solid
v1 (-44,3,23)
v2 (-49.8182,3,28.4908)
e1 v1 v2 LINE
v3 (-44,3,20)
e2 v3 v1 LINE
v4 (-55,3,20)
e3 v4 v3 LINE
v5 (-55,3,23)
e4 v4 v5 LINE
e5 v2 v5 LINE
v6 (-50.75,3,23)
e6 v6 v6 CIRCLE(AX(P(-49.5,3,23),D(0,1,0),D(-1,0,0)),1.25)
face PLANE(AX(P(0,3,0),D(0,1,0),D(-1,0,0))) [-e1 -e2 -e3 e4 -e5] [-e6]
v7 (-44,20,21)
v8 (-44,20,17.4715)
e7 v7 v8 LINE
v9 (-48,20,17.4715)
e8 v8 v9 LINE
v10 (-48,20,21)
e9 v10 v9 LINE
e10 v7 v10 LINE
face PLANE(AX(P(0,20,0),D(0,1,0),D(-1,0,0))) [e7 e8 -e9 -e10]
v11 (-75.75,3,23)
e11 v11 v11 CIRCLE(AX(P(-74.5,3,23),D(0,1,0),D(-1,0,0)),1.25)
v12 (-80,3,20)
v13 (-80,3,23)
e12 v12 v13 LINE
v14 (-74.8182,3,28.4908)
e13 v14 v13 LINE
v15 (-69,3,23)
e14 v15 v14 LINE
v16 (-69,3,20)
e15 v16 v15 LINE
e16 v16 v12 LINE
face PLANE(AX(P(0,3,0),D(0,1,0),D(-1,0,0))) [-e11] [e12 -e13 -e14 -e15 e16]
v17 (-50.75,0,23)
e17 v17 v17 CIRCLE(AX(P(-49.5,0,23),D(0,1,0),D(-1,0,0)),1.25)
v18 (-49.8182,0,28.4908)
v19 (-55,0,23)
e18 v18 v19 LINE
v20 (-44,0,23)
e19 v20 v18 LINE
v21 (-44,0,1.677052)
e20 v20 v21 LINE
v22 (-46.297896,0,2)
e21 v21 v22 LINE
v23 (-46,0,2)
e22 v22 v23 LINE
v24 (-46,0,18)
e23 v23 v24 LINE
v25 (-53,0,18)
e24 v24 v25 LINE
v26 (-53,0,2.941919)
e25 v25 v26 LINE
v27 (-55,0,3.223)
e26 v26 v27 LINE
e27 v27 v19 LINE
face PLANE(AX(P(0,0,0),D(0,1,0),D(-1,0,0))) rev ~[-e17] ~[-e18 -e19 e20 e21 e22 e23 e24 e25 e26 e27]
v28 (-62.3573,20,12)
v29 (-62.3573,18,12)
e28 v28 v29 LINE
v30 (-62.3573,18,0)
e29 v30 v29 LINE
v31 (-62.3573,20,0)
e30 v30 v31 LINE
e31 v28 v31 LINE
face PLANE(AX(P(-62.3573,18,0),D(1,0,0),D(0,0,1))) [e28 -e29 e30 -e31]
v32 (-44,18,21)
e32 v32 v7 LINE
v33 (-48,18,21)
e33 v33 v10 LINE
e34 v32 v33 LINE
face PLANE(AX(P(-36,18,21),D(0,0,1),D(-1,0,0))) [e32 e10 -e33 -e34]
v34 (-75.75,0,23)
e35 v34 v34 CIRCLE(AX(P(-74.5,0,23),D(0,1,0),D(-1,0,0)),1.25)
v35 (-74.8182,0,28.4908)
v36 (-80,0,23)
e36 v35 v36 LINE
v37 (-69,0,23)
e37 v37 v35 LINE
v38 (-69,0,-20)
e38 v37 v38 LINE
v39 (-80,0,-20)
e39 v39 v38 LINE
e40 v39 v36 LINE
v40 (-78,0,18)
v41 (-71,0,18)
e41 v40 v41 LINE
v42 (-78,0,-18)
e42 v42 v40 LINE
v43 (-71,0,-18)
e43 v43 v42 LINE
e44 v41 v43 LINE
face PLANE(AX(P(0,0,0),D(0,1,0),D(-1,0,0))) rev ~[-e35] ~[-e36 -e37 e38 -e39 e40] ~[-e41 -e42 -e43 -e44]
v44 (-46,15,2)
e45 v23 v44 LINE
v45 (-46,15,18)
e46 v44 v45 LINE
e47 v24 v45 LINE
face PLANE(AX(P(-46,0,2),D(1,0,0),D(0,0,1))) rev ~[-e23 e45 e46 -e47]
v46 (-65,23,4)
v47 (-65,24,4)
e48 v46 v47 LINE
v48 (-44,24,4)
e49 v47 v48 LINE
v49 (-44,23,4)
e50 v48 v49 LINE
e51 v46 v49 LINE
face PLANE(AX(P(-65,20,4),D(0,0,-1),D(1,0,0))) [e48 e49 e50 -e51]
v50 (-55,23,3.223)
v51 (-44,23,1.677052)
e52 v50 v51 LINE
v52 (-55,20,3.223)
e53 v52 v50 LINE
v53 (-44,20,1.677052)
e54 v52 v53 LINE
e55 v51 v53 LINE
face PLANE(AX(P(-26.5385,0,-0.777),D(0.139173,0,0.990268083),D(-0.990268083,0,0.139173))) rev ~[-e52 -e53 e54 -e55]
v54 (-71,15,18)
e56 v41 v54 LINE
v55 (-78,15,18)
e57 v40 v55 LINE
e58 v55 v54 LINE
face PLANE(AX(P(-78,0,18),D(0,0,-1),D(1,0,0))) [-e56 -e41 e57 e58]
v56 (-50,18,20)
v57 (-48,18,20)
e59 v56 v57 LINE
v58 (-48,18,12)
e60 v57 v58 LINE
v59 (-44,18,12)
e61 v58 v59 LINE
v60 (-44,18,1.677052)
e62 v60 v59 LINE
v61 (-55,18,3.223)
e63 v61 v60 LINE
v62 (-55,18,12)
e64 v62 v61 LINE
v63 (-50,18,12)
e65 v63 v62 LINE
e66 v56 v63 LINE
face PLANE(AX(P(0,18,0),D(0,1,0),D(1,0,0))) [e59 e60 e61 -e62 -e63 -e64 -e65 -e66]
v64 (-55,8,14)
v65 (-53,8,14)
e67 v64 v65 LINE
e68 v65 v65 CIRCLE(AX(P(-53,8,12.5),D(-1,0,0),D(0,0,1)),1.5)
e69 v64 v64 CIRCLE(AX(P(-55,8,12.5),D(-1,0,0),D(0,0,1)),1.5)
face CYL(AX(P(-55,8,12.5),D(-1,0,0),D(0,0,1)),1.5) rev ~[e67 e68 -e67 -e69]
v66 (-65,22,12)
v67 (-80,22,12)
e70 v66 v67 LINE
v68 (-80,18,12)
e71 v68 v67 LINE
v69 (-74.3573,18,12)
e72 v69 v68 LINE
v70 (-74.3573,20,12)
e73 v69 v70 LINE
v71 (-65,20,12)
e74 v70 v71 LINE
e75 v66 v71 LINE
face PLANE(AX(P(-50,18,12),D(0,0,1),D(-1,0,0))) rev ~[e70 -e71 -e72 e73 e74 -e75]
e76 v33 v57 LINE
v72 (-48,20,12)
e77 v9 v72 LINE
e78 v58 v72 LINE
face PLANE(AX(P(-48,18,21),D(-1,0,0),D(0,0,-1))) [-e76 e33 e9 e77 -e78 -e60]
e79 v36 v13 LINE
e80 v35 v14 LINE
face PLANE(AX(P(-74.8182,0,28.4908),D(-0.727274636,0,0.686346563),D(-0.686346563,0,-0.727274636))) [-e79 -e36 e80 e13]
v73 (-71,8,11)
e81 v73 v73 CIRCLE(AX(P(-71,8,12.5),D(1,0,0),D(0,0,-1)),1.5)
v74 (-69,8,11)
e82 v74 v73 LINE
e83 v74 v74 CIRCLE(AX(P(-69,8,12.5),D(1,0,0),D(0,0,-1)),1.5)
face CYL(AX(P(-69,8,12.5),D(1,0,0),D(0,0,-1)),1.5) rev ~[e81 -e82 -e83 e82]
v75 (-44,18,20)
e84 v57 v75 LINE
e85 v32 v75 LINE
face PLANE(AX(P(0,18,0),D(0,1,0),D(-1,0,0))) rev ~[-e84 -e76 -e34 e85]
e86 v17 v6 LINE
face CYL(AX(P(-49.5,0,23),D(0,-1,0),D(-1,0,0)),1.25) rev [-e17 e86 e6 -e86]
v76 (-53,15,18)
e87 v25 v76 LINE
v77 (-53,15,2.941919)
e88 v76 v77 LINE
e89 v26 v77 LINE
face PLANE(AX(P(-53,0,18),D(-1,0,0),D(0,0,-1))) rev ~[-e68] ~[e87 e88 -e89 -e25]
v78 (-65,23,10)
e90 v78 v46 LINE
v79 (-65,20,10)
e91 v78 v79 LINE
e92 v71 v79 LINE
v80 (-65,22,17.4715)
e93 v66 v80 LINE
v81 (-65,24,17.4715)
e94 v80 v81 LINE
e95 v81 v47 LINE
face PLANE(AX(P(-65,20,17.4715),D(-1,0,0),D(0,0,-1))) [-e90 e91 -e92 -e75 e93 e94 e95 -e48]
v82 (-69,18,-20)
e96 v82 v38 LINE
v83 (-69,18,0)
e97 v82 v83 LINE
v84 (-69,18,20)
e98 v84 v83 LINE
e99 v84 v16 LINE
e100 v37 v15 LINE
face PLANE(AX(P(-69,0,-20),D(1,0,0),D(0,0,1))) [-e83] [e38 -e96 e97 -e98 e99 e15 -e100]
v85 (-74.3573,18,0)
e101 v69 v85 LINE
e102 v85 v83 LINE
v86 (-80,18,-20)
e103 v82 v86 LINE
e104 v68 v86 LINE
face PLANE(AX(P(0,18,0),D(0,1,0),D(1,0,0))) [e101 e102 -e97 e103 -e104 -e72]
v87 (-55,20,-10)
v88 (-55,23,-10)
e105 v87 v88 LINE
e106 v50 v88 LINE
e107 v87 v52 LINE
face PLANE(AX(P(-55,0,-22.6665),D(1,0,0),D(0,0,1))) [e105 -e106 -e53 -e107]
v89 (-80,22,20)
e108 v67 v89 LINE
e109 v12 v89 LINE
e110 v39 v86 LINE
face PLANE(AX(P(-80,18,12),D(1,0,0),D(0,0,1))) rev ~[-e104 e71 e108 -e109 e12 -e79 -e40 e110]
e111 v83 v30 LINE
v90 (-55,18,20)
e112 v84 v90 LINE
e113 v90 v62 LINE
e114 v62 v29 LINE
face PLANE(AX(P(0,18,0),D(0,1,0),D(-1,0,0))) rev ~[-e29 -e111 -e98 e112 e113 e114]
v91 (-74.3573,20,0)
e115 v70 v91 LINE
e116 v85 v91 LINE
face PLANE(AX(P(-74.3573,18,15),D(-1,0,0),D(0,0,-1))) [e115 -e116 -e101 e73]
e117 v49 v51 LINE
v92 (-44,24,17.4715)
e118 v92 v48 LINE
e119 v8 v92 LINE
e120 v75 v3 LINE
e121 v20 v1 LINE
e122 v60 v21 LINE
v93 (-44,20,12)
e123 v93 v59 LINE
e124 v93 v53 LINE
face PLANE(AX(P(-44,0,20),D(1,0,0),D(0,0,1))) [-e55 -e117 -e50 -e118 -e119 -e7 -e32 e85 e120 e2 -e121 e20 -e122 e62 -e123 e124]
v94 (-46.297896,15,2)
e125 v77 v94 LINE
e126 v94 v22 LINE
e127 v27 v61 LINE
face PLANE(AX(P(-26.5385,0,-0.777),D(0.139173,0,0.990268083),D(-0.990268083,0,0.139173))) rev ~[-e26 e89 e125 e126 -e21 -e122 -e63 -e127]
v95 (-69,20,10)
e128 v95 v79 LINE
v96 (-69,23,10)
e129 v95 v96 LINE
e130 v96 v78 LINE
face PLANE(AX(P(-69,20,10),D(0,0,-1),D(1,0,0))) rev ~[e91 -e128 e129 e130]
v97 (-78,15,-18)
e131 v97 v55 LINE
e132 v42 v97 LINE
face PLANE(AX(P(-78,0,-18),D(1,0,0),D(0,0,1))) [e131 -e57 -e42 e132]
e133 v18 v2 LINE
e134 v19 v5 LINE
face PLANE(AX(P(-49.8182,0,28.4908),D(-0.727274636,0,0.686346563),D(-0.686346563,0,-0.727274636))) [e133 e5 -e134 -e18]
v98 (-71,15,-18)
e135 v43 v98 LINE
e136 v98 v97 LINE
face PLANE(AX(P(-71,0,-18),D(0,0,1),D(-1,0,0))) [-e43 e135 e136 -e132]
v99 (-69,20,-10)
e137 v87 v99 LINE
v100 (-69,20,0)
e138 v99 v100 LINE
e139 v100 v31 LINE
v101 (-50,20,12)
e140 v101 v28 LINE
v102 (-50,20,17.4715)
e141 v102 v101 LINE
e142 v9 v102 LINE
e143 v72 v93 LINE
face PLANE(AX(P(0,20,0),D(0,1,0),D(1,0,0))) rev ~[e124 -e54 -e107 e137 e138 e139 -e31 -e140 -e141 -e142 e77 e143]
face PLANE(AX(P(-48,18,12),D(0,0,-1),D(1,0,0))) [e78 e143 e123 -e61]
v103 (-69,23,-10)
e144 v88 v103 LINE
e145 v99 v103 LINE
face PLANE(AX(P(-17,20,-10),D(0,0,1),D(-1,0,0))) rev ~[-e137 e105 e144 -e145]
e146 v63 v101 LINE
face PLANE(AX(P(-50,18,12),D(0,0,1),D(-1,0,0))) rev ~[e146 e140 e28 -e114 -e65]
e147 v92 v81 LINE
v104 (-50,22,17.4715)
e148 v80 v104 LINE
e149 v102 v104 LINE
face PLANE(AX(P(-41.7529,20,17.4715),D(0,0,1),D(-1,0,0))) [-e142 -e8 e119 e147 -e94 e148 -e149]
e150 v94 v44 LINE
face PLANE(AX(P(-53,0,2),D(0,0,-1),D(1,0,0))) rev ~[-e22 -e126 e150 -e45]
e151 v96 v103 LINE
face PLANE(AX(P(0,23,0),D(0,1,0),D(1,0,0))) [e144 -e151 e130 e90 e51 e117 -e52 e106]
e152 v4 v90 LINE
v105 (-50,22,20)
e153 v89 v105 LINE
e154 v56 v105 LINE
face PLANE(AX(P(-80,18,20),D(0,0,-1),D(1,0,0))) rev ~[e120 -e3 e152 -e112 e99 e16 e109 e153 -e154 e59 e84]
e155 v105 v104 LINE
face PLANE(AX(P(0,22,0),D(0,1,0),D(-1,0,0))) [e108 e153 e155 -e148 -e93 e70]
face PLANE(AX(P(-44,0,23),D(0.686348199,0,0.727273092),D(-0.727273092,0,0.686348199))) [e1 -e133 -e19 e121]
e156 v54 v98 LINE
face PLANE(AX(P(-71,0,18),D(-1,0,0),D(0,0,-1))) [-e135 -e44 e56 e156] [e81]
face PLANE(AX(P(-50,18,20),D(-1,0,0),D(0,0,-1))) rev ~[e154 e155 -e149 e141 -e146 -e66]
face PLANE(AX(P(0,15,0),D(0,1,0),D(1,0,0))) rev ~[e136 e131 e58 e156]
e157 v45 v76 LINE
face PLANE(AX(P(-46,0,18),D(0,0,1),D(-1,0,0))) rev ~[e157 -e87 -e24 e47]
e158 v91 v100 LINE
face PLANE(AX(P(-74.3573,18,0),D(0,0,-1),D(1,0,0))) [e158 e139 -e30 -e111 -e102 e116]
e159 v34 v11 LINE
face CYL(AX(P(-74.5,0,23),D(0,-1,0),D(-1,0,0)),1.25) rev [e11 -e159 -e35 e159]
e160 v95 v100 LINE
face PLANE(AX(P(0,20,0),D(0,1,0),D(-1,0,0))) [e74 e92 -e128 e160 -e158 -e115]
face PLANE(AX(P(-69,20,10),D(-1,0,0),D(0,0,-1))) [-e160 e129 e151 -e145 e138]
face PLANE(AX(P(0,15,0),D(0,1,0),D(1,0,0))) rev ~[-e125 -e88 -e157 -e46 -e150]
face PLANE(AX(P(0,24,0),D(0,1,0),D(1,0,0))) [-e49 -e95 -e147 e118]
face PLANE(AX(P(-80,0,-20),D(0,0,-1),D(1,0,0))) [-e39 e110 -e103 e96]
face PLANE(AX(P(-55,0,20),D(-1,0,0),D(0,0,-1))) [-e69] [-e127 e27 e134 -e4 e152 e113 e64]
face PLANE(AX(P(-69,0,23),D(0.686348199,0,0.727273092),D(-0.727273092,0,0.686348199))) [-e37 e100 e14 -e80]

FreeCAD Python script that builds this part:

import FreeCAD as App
import Part
import Sketcher

V = App.Vector
Q = App.Units.Quantity

doc = App.newDocument("Part")
params = doc.addObject("Spreadsheet::Sheet", "Params")
for row, (alias, value) in enumerate([
    ("sketch1_width", "11 mm"),
    ("sketch1_height", "40 mm"),
    ("sketch1_height2", "20 mm"),
    ("pad1_length", "15 mm"),
    ("sketch2_height", "40 mm"),
    ("sketch2_width", "11 mm"),
    ("sketch2_height2", "20 mm"),
    ("pad2_length", "3 mm"),
    ("sketch3_diameter", "3 mm"),
    ("pocket1_length", "3 mm"),
    ("sketch4_diameter", "3 mm"),
    ("pocket2_length", "3 mm"),
    ("sketch5_width", "12 mm"),
    ("sketch5_width2", "13 mm"),
    ("sketch5_height", "15 mm"),
    ("sketch5_height2", "17 mm"),
    ("sketch5_height3", "9 mm"),
    ("pad3_length", "2 mm"),
    ("sketch6_width", "30 mm"),
    ("sketch6_height", "8 mm"),
    ("pad4_length", "4 mm"),
    ("pad5_length", "4 mm"),
    ("sketch8_width", "52 mm"),
    ("sketch8_height", "20 mm"),
    ("pad6_length", "3 mm"),
    ("sketch9_diameter", "2.5 mm"),
    ("sketch9_height", "3 mm"),
    ("sketch9_length", "8 mm"),
    ("sketch9_width", "11 mm"),
    ("pad7_length", "3 mm"),
    ("sketch10_width", "44 mm"),
    ("sketch10_width2", "55 mm"),
    ("sketch11_height", "4 mm"),
], start=1):
    params.set(f"A{row}", alias)
    params.set(f"B{row}", "=" + value)
    params.setAlias(f"B{row}", alias)

body = doc.addObject("PartDesign::Body", "Body")
body.AllowCompound = True

sketch1 = body.newObject("Sketcher::SketchObject", "Sketch")
sketch1.AttachmentSupport = (doc.getObject("XZ_Plane"), [""])
sketch1.MapMode = "FlatFace"
sketch1.addGeometry([
    Part.LineSegment(V(-69, -20, 0), V(-80, -20, 0)),
    Part.LineSegment(V(-80, -20, 0), V(-80, 20, 0)),
    Part.LineSegment(V(-80, 20, 0), V(-69, 20, 0)),
    Part.LineSegment(V(-69, 20, 0), V(-69, -20, 0)),
    Part.LineSegment(V(-78, -18, 0), V(-71, -18, 0)),
    Part.LineSegment(V(-71, -18, 0), V(-71, 18, 0)),
    Part.LineSegment(V(-71, 18, 0), V(-78, 18, 0)),
    Part.LineSegment(V(-78, 18, 0), V(-78, -18, 0)),
    Part.LineSegment(V(-44, 0, 0), V(-55, 0, 0)),
    Part.LineSegment(V(-55, 0, 0), V(-55, 20, 0)),
    Part.LineSegment(V(-55, 20, 0), V(-44, 20, 0)),
    Part.LineSegment(V(-44, 20, 0), V(-44, 0, 0)),
    Part.LineSegment(V(-53, 18, 0), V(-53, 2, 0)),
    Part.LineSegment(V(-53, 2, 0), V(-46, 2, 0)),
    Part.LineSegment(V(-46, 2, 0), V(-46, 18, 0)),
    Part.LineSegment(V(-46, 18, 0), V(-53, 18, 0)),
], False)
sketch1.addConstraint([
    Sketcher.Constraint("Coincident", 0, 2, 1, 1),
    Sketcher.Constraint("Coincident", 1, 2, 2, 1),
    Sketcher.Constraint("Coincident", 2, 2, 3, 1),
    Sketcher.Constraint("Coincident", 3, 2, 0, 1),
    Sketcher.Constraint("Coincident", 4, 2, 5, 1),
    Sketcher.Constraint("Coincident", 5, 2, 6, 1),
    Sketcher.Constraint("Coincident", 6, 2, 7, 1),
    Sketcher.Constraint("Coincident", 7, 2, 4, 1),
    Sketcher.Constraint("Coincident", 8, 2, 9, 1),
    Sketcher.Constraint("Coincident", 9, 2, 10, 1),
    Sketcher.Constraint("Coincident", 10, 2, 11, 1),
    Sketcher.Constraint("Coincident", 11, 2, 8, 1),
    Sketcher.Constraint("Coincident", 12, 2, 13, 1),
    Sketcher.Constraint("Coincident", 13, 2, 14, 1),
    Sketcher.Constraint("Coincident", 14, 2, 15, 1),
    Sketcher.Constraint("Coincident", 15, 2, 12, 1),
    Sketcher.Constraint("Horizontal", 0),
    Sketcher.Constraint("Vertical", 1),
    Sketcher.Constraint("Horizontal", 2),
    Sketcher.Constraint("Vertical", 3),
    Sketcher.Constraint("Horizontal", 4),
    Sketcher.Constraint("Vertical", 5),
    Sketcher.Constraint("Horizontal", 6),
    Sketcher.Constraint("Vertical", 7),
    Sketcher.Constraint("Horizontal", 8),
    Sketcher.Constraint("Vertical", 9),
    Sketcher.Constraint("Horizontal", 10),
    Sketcher.Constraint("Vertical", 11),
    Sketcher.Constraint("Vertical", 12),
    Sketcher.Constraint("Horizontal", 13),
    Sketcher.Constraint("Vertical", 14),
    Sketcher.Constraint("Horizontal", 15),
    Sketcher.Constraint("PointOnObject", 8, 2, -1),
    Sketcher.Constraint("Horizontal", 2, 2, 9, 2),
    Sketcher.Constraint("Horizontal", 6, 2, 14, 2),
    Sketcher.Constraint("Equal", 2, 8),
    Sketcher.Constraint("Equal", 6, 13),
    Sketcher.Constraint("DistanceX", 0, 2, 0, 1, Q("11 mm")),
    Sketcher.Constraint("DistanceY", 1, 1, 1, 2, Q("40 mm")),
    Sketcher.Constraint("DistanceY", 9, 1, 9, 2, Q("20 mm")),
    Sketcher.Constraint("DistanceY", -1, 1, 12, 2, Q("2 mm")),
    Sketcher.Constraint("DistanceX", 4, 2, 3, 2, Q("2 mm")),
    Sketcher.Constraint("DistanceY", 3, 2, 4, 2, Q("2 mm")),
    Sketcher.Constraint("DistanceY", 5, 2, 2, 2, Q("2 mm")),
    Sketcher.Constraint("DistanceX", 1, 2, 6, 2, Q("2 mm")),
    Sketcher.Constraint("DistanceX", 2, 2, 8, 2, Q("14 mm")),
    Sketcher.Constraint("DistanceX", 8, 2, 12, 2, Q("2 mm")),
    Sketcher.Constraint("DistanceX", 0, 2, -1, 1, Q("80 mm")),
])
sketch1.setExpression("Constraints[37]", "Params.sketch1_width")
sketch1.setExpression("Constraints[38]", "Params.sketch1_height")
sketch1.setExpression("Constraints[39]", "Params.sketch1_height2")
pad1 = body.newObject("PartDesign::Pad", "Pad")
pad1.Profile = sketch1
pad1.setExpression("Length", "Params.pad1_length")
pad1.Reversed = True

sketch2 = body.newObject("Sketcher::SketchObject", "Sketch001")
sketch2.AttachmentSupport = (doc.getObject("XZ_Plane"), [""])
sketch2.MapMode = "FlatFace"
sketch2.AttachmentOffset = App.Placement(V(0, 0, -15), App.Rotation())
sketch2.addGeometry([
    Part.LineSegment(V(-69, 20, 0), V(-69, -20, 0)),
    Part.LineSegment(V(-69, -20, 0), V(-80, -20, 0)),
    Part.LineSegment(V(-80, -20, 0), V(-80, 20, 0)),
    Part.LineSegment(V(-80, 20, 0), V(-69, 20, 0)),
    Part.LineSegment(V(-55, 0, 0), V(-55, 20, 0)),
    Part.LineSegment(V(-55, 20, 0), V(-44, 20, 0)),
    Part.LineSegment(V(-44, 20, 0), V(-44, 0, 0)),
    Part.LineSegment(V(-44, 0, 0), V(-55, 0, 0)),
], False)
sketch2.addConstraint([
    Sketcher.Constraint("Coincident", 0, 2, 1, 1),
    Sketcher.Constraint("Coincident", 1, 2, 2, 1),
    Sketcher.Constraint("Coincident", 2, 2, 3, 1),
    Sketcher.Constraint("Coincident", 3, 2, 0, 1),
    Sketcher.Constraint("Coincident", 4, 2, 5, 1),
    Sketcher.Constraint("Coincident", 5, 2, 6, 1),
    Sketcher.Constraint("Coincident", 6, 2, 7, 1),
    Sketcher.Constraint("Coincident", 7, 2, 4, 1),
    Sketcher.Constraint("Vertical", 0),
    Sketcher.Constraint("Horizontal", 1),
    Sketcher.Constraint("Vertical", 2),
    Sketcher.Constraint("Horizontal", 3),
    Sketcher.Constraint("Vertical", 4),
    Sketcher.Constraint("Horizontal", 5),
    Sketcher.Constraint("Vertical", 6),
    Sketcher.Constraint("Horizontal", 7),
    Sketcher.Constraint("PointOnObject", 6, 2, -1),
    Sketcher.Constraint("Horizontal", 3, 2, 4, 2),
    Sketcher.Constraint("Equal", 3, 5),
    Sketcher.Constraint("DistanceY", 0, 2, 0, 1, Q("40 mm")),
    Sketcher.Constraint("DistanceX", 1, 2, 1, 1, Q("11 mm")),
    Sketcher.Constraint("DistanceY", 4, 1, 4, 2, Q("20 mm")),
    Sketcher.Constraint("DistanceX", 0, 2, -1, 1, Q("69 mm")),
    Sketcher.Constraint("DistanceX", 4, 2, -1, 1, Q("55 mm")),
])
sketch2.setExpression("Constraints[19]", "Params.sketch2_height")
sketch2.setExpression("Constraints[20]", "Params.sketch2_width")
sketch2.setExpression("Constraints[21]", "Params.sketch2_height2")
pad2 = body.newObject("PartDesign::Pad", "Pad001")
pad2.Profile = sketch2
pad2.setExpression("Length", "Params.pad2_length")
pad2.Reversed = True

sketch3 = body.newObject("Sketcher::SketchObject", "Sketch002")
sketch3.AttachmentSupport = (doc.getObject("YZ_Plane"), [""])
sketch3.MapMode = "FlatFace"
sketch3.AttachmentOffset = App.Placement(V(0, 0, -69), App.Rotation())
sketch3.addGeometry(Part.Circle(V(8, 12.5, 0), V(0, 0, 1), 1.5), False)
sketch3.addConstraint([
    Sketcher.Constraint("Diameter", 0, Q("3 mm")),
    Sketcher.Constraint("DistanceX", -1, 1, 0, 3, Q("8 mm")),
    Sketcher.Constraint("DistanceY", -1, 1, 0, 3, Q("12.5 mm")),
])
sketch3.setExpression("Constraints[0]", "Params.sketch3_diameter")
pocket1 = body.newObject("PartDesign::Pocket", "Pocket")
pocket1.Profile = sketch3
pocket1.setExpression("Length", "Params.pocket1_length")

sketch4 = body.newObject("Sketcher::SketchObject", "Sketch003")
sketch4.AttachmentSupport = (doc.getObject("YZ_Plane"), [""])
sketch4.MapMode = "FlatFace"
sketch4.AttachmentOffset = App.Placement(V(0, 0, -55), App.Rotation())
sketch4.addGeometry(Part.Circle(V(8, 12.5, 0), V(0, 0, 1), 1.5), False)
sketch4.addConstraint([
    Sketcher.Constraint("Diameter", 0, Q("3 mm")),
    Sketcher.Constraint("DistanceX", -1, 1, 0, 3, Q("8 mm")),
    Sketcher.Constraint("DistanceY", -1, 1, 0, 3, Q("12.5 mm")),
])
sketch4.setExpression("Constraints[0]", "Params.sketch4_diameter")
pocket2 = body.newObject("PartDesign::Pocket", "Pocket001")
pocket2.Profile = sketch4
pocket2.setExpression("Length", "Params.pocket2_length")
pocket2.Reversed = True

sketch5 = body.newObject("Sketcher::SketchObject", "Sketch004")
sketch5.AttachmentSupport = (doc.getObject("XZ_Plane"), [""])
sketch5.MapMode = "FlatFace"
sketch5.AttachmentOffset = App.Placement(V(0, 0, -18), App.Rotation())
sketch5.addGeometry([
    Part.LineSegment(V(-62, 0, 0), V(-74, 0, 0)),
    Part.LineSegment(V(-74, 0, 0), V(-74, 15, 0)),
    Part.LineSegment(V(-74, 15, 0), V(-62, 15, 0)),
    Part.LineSegment(V(-62, 15, 0), V(-62, 0, 0)),
    Part.LineSegment(V(-36, 12, 0), V(-48, 12, 0)),
    Part.LineSegment(V(-48, 12, 0), V(-48, 21, 0)),
    Part.LineSegment(V(-48, 21, 0), V(-36, 21, 0)),
    Part.LineSegment(V(-36, 21, 0), V(-36, 12, 0)),
    Part.LineSegment(V(-4, 17, 0), V(-4, 0, 0)),
    Part.LineSegment(V(-4, 0, 0), V(-17, 0, 0)),
    Part.LineSegment(V(-17, 0, 0), V(-17, 17, 0)),
    Part.LineSegment(V(-17, 17, 0), V(-4, 17, 0)),
], False)
sketch5.addConstraint([
    Sketcher.Constraint("Coincident", 0, 2, 1, 1),
    Sketcher.Constraint("Coincident", 1, 2, 2, 1),
    Sketcher.Constraint("Coincident", 2, 2, 3, 1),
    Sketcher.Constraint("Coincident", 3, 2, 0, 1),
    Sketcher.Constraint("Coincident", 4, 2, 5, 1),
    Sketcher.Constraint("Coincident", 5, 2, 6, 1),
    Sketcher.Constraint("Coincident", 6, 2, 7, 1),
    Sketcher.Constraint("Coincident", 7, 2, 4, 1),
    Sketcher.Constraint("Coincident", 8, 2, 9, 1),
    Sketcher.Constraint("Coincident", 9, 2, 10, 1),
    Sketcher.Constraint("Coincident", 10, 2, 11, 1),
    Sketcher.Constraint("Coincident", 11, 2, 8, 1),
    Sketcher.Constraint("Horizontal", 0),
    Sketcher.Constraint("Vertical", 1),
    Sketcher.Constraint("Horizontal", 2),
    Sketcher.Constraint("Vertical", 3),
    Sketcher.Constraint("Horizontal", 4),
    Sketcher.Constraint("Vertical", 5),
    Sketcher.Constraint("Horizontal", 6),
    Sketcher.Constraint("Vertical", 7),
    Sketcher.Constraint("Vertical", 8),
    Sketcher.Constraint("Horizontal", 9),
    Sketcher.Constraint("Vertical", 10),
    Sketcher.Constraint("Horizontal", 11),
    Sketcher.Constraint("PointOnObject", 0, 2, -1),
    Sketcher.Constraint("PointOnObject", 8, 2, -1),
    Sketcher.Constraint("Equal", 2, 4),
    Sketcher.Constraint("DistanceX", 0, 2, 0, 1, Q("12 mm")),
    Sketcher.Constraint("DistanceX", 9, 2, 9, 1, Q("13 mm")),
    Sketcher.Constraint("DistanceY", 1, 1, 1, 2, Q("15 mm")),
    Sketcher.Constraint("DistanceY", 8, 2, 8, 1, Q("17 mm")),
    Sketcher.Constraint("DistanceY", -1, 1, 4, 2, Q("12 mm")),
    Sketcher.Constraint("DistanceX", 9, 2, -1, 1, Q("17 mm")),
    Sketcher.Constraint("DistanceY", 5, 1, 5, 2, Q("9 mm")),
    Sketcher.Constraint("DistanceX", 4, 2, -1, 1, Q("48 mm")),
    Sketcher.Constraint("DistanceX", 0, 2, -1, 1, Q("74.3573 mm")),
])
sketch5.setExpression("Constraints[27]", "Params.sketch5_width")
sketch5.setExpression("Constraints[28]", "Params.sketch5_width2")
sketch5.setExpression("Constraints[29]", "Params.sketch5_height")
sketch5.setExpression("Constraints[30]", "Params.sketch5_height2")
sketch5.setExpression("Constraints[33]", "Params.sketch5_height3")
pad3 = body.newObject("PartDesign::Pad", "Pad002")
pad3.Profile = sketch5
pad3.setExpression("Length", "Params.pad3_length")
pad3.Reversed = True

sketch6 = body.newObject("Sketcher::SketchObject", "Sketch005")
sketch6.AttachmentSupport = (doc.getObject("XZ_Plane"), [""])
sketch6.MapMode = "FlatFace"
sketch6.AttachmentOffset = App.Placement(V(0, 0, -18), App.Rotation())
sketch6.addGeometry([
    Part.LineSegment(V(-80, 12, 0), V(-80, 20, 0)),
    Part.LineSegment(V(-80, 20, 0), V(-50, 20, 0)),
    Part.LineSegment(V(-50, 20, 0), V(-50, 12, 0)),
    Part.LineSegment(V(-50, 12, 0), V(-80, 12, 0)),
], False)
sketch6.addConstraint([
    Sketcher.Constraint("Coincident", 0, 2, 1, 1),
    Sketcher.Constraint("Coincident", 1, 2, 2, 1),
    Sketcher.Constraint("Coincident", 2, 2, 3, 1),
    Sketcher.Constraint("Coincident", 3, 2, 0, 1),
    Sketcher.Constraint("Vertical", 0),
    Sketcher.Constraint("Horizontal", 1),
    Sketcher.Constraint("Vertical", 2),
    Sketcher.Constraint("Horizontal", 3),
    Sketcher.Constraint("DistanceX", 1, 1, 1, 2, Q("30 mm")),
    Sketcher.Constraint("DistanceY", 0, 1, 0, 2, Q("8 mm")),
    Sketcher.Constraint("DistanceX", 0, 2, -1, 1, Q("80 mm")),
    Sketcher.Constraint("DistanceY", -1, 1, 0, 2, Q("20 mm")),
])
sketch6.setExpression("Constraints[8]", "Params.sketch6_width")
sketch6.setExpression("Constraints[9]", "Params.sketch6_height")
pad4 = body.newObject("PartDesign::Pad", "Pad003")
pad4.Profile = sketch6
pad4.setExpression("Length", "Params.pad4_length")
pad4.Reversed = True

sketch7 = body.newObject("Sketcher::SketchObject", "Sketch006")
sketch7.AttachmentSupport = (doc.getObject("XZ_Plane"), [""])
sketch7.MapMode = "FlatFace"
sketch7.AttachmentOffset = App.Placement(V(0, 0, -20), App.Rotation())
sketch7.addGeometry([
    Part.LineSegment(V(-42, 4, 0), V(-65, 4, 0)),
    Part.LineSegment(V(-65, 4, 0), V(-65, 17, 0)),
    Part.LineSegment(V(-65, 17, 0), V(-42, 17, 0)),
    Part.LineSegment(V(-42, 17, 0), V(-42, 4, 0)),
], False)
sketch7.addConstraint([
    Sketcher.Constraint("Coincident", 0, 2, 1, 1),
    Sketcher.Constraint("Coincident", 1, 2, 2, 1),
    Sketcher.Constraint("Coincident", 2, 2, 3, 1),
    Sketcher.Constraint("Coincident", 3, 2, 0, 1),
    Sketcher.Constraint("Horizontal", 0),
    Sketcher.Constraint("Vertical", 1),
    Sketcher.Constraint("Horizontal", 2),
    Sketcher.Constraint("Vertical", 3),
    Sketcher.Constraint("DistanceX", 0, 2, -1, 1, Q("65 mm")),
    Sketcher.Constraint("DistanceY", -1, 1, 0, 2, Q("4 mm")),
    Sketcher.Constraint("DistanceX", 0, 2, 0, 1, Q("23.247 mm")),
    Sketcher.Constraint("DistanceY", 1, 1, 1, 2, Q("13.4715 mm")),
])
pad5 = body.newObject("PartDesign::Pad", "Pad004")
pad5.Profile = sketch7
pad5.setExpression("Length", "Params.pad5_length")
pad5.Reversed = True

sketch8 = body.newObject("Sketcher::SketchObject", "Sketch007")
sketch8.AttachmentSupport = (doc.getObject("XZ_Plane"), [""])
sketch8.MapMode = "FlatFace"
sketch8.AttachmentOffset = App.Placement(V(0, 0, -20), App.Rotation())
sketch8.addGeometry([
    Part.LineSegment(V(-69, -10, 0), V(-69, 10, 0)),
    Part.LineSegment(V(-69, 10, 0), V(-17, 10, 0)),
    Part.LineSegment(V(-17, 10, 0), V(-17, -10, 0)),
    Part.LineSegment(V(-17, -10, 0), V(-69, -10, 0)),
], False)
sketch8.addConstraint([
    Sketcher.Constraint("Coincident", 0, 2, 1, 1),
    Sketcher.Constraint("Coincident", 1, 2, 2, 1),
    Sketcher.Constraint("Coincident", 2, 2, 3, 1),
    Sketcher.Constraint("Coincident", 3, 2, 0, 1),
    Sketcher.Constraint("Vertical", 0),
    Sketcher.Constraint("Horizontal", 1),
    Sketcher.Constraint("Vertical", 2),
    Sketcher.Constraint("Horizontal", 3),
    Sketcher.Constraint("DistanceX", 1, 1, 1, 2, Q("52 mm")),
    Sketcher.Constraint("DistanceY", 0, 1, 0, 2, Q("20 mm")),
    Sketcher.Constraint("DistanceX", 0, 2, -1, 1, Q("69 mm")),
    Sketcher.Constraint("DistanceY", -1, 1, 0, 2, Q("10 mm")),
])
sketch8.setExpression("Constraints[8]", "Params.sketch8_width")
sketch8.setExpression("Constraints[9]", "Params.sketch8_height")
pad6 = body.newObject("PartDesign::Pad", "Pad005")
pad6.Profile = sketch8
pad6.setExpression("Length", "Params.pad6_length")
pad6.Reversed = True

sketch9 = body.newObject("Sketcher::SketchObject", "Sketch008")
sketch9.AttachmentSupport = (doc.getObject("XZ_Plane"), [""])
sketch9.MapMode = "FlatFace"
sketch9.addGeometry([
    Part.LineSegment(V(-69, 23, 0), V(-69, 20, 0)),
    Part.LineSegment(V(-69, 20, 0), V(-80, 20, 0)),
    Part.LineSegment(V(-80, 20, 0), V(-80, 23, 0)),
    Part.LineSegment(V(-80, 23, 0), V(-74.8, 28.5, 0)),
    Part.LineSegment(V(-74.8, 28.5, 0), V(-69, 23, 0)),
    Part.Circle(V(-74.5, 23, 0), V(0, 0, 1), 1.2),
    Part.LineSegment(V(-44, 23, 0), V(-44, 20, 0)),
    Part.LineSegment(V(-44, 20, 0), V(-55, 20, 0)),
    Part.LineSegment(V(-55, 20, 0), V(-55, 23, 0)),
    Part.LineSegment(V(-55, 23, 0), V(-49.8, 28.5, 0)),
    Part.LineSegment(V(-49.8, 28.5, 0), V(-44, 23, 0)),
    Part.Circle(V(-49.5, 23, 0), V(0, 0, 1), 1.2),
], False)
sketch9.addConstraint([
    Sketcher.Constraint("Coincident", 0, 2, 1, 1),
    Sketcher.Constraint("Coincident", 1, 2, 2, 1),
    Sketcher.Constraint("Coincident", 2, 2, 3, 1),
    Sketcher.Constraint("Coincident", 3, 2, 4, 1),
    Sketcher.Constraint("Coincident", 4, 2, 0, 1),
    Sketcher.Constraint("Coincident", 6, 2, 7, 1),
    Sketcher.Constraint("Coincident", 7, 2, 8, 1),
    Sketcher.Constraint("Coincident", 8, 2, 9, 1),
    Sketcher.Constraint("Coincident", 9, 2, 10, 1),
    Sketcher.Constraint("Coincident", 10, 2, 6, 1),
    Sketcher.Constraint("Vertical", 0),
    Sketcher.Constraint("Horizontal", 1),
    Sketcher.Constraint("Vertical", 2),
    Sketcher.Constraint("Vertical", 6),
    Sketcher.Constraint("Horizontal", 7),
    Sketcher.Constraint("Vertical", 8),
    Sketcher.Constraint("Equal", 5, 11),
    Sketcher.Constraint("Perpendicular", 3, 4),
    Sketcher.Constraint("Perpendicular", 4, 9),
    Sketcher.Constraint("Perpendicular", 9, 10),
    Sketcher.Constraint("Horizontal", 5, 3, 11, 3),
    Sketcher.Constraint("Horizontal", 11, 3, 2, 2),
    Sketcher.Constraint("Horizontal", 2, 2, 4, 2),
    Sketcher.Constraint("Horizontal", 1, 2, 6, 2),
    Sketcher.Constraint("Horizontal", 4, 2, 8, 2),
    Sketcher.Constraint("Horizontal", 3, 2, 9, 2),
    Sketcher.Constraint("Horizontal", 8, 2, 10, 2),
    Sketcher.Constraint("Diameter", 5, Q("2.5 mm")),
    Sketcher.Constraint("DistanceY", 0, 2, 0, 1, Q("3 mm")),
    Sketcher.Constraint("Distance", 4, Q("8 mm")),
    Sketcher.Constraint("DistanceX", 5, 3, 11, 3, Q("25 mm")),
    Sketcher.Constraint("DistanceX", 0, 2, 6, 2, Q("25 mm")),
    Sketcher.Constraint("DistanceX", 1, 2, 1, 1, Q("11 mm")),
    Sketcher.Constraint("DistanceY", -1, 1, 5, 3, Q("23 mm")),
    Sketcher.Constraint("DistanceX", 0, 2, -1, 1, Q("69 mm")),
    Sketcher.Constraint("DistanceX", 5, 3, -1, 1, Q("74.5 mm")),
])
sketch9.setExpression("Constraints[27]", "Params.sketch9_diameter")
sketch9.setExpression("Constraints[28]", "Params.sketch9_height")
sketch9.setExpression("Constraints[29]", "Params.sketch9_length")
sketch9.setExpression("Constraints[32]", "Params.sketch9_width")
pad7 = body.newObject("PartDesign::Pad", "Pad006")
pad7.Profile = sketch9
pad7.setExpression("Length", "Params.pad7_length")
pad7.Reversed = True

sketch10 = body.newObject("Sketcher::SketchObject", "Sketch009")
sketch10.AttachmentSupport = (doc.getObject("XZ_Plane"), [""])
sketch10.MapMode = "FlatFace"
sketch10.addGeometry([
    Part.LineSegment(V(-44, 21, 0), V(0, 21, 0)),
    Part.LineSegment(V(0, 21, 0), V(0, -23, 0)),
    Part.LineSegment(V(0, -23, 0), V(-55, -23, 0)),
    Part.LineSegment(V(-55, -23, 0), V(-55, -1, 0)),
    Part.LineSegment(V(-55, -1, 0), V(-44, -1, 0)),
    Part.LineSegment(V(-44, -1, 0), V(-44, 21, 0)),
], False)
sketch10.addConstraint([
    Sketcher.Constraint("Coincident", 0, 2, 1, 1),
    Sketcher.Constraint("Coincident", 1, 2, 2, 1),
    Sketcher.Constraint("Coincident", 2, 2, 3, 1),
    Sketcher.Constraint("Coincident", 3, 2, 4, 1),
    Sketcher.Constraint("Coincident", 4, 2, 5, 1),
    Sketcher.Constraint("Coincident", 5, 2, 0, 1),
    Sketcher.Constraint("Horizontal", 0),
    Sketcher.Constraint("Vertical", 1),
    Sketcher.Constraint("Horizontal", 2),
    Sketcher.Constraint("Vertical", 3),
    Sketcher.Constraint("Horizontal", 4),
    Sketcher.Constraint("Vertical", 5),
    Sketcher.Constraint("PointOnObject", 0, 2, -2),
    Sketcher.Constraint("Equal", 3, 5),
    Sketcher.Constraint("DistanceX", 0, 1, 0, 2, Q("44 mm")),
    Sketcher.Constraint("DistanceX", 2, 2, 2, 1, Q("55 mm")),
    Sketcher.Constraint("DistanceY", 1, 2, 1, 1, Q("43.779 mm")),
    Sketcher.Constraint("DistanceY", 3, 2, -1, 1, Q("0.777 mm")),
])
sketch10.setExpression("Constraints[14]", "Params.sketch10_width")
sketch10.setExpression("Constraints[15]", "Params.sketch10_width2")
pocket3 = body.newObject("PartDesign::Pocket", "Pocket002")
pocket3.Profile = sketch10
pocket3.Type = "ThroughAll"

sketch11 = body.newObject("Sketcher::SketchObject", "Sketch010")
sketch11.AttachmentSupport = (doc.getObject("XZ_Plane"), [""])
sketch11.MapMode = "FlatFace"
sketch11.addGeometry([
    Part.LineSegment(V(-55, 3.2, 0), V(-26.5, -0.8, 0)),
    Part.LineSegment(V(-26.5, -0.8, 0), V(-55, -0.8, 0)),
    Part.LineSegment(V(-55, -0.8, 0), V(-55, 3.2, 0)),
], False)
sketch11.addConstraint([
    Sketcher.Constraint("Coincident", 0, 2, 1, 1),
    Sketcher.Constraint("Coincident", 1, 2, 2, 1),
    Sketcher.Constraint("Coincident", 2, 2, 0, 1),
    Sketcher.Constraint("Horizontal", 1),
    Sketcher.Constraint("Vertical", 2),
    Sketcher.Constraint("DistanceY", 2, 1, 2, 2, Q("4 mm")),
    Sketcher.Constraint("Angle", 0, Q("-8 deg")),
    Sketcher.Constraint("DistanceX", 1, 2, -1, 1, Q("55 mm")),
    Sketcher.Constraint("DistanceY", 0, 2, -1, 1, Q("0.777 mm")),
])
sketch11.setExpression("Constraints[5]", "Params.sketch11_height")
pocket4 = body.newObject("PartDesign::Pocket", "Pocket003")
pocket4.Profile = sketch11
pocket4.Type = "ThroughAll"

doc.recompute()
